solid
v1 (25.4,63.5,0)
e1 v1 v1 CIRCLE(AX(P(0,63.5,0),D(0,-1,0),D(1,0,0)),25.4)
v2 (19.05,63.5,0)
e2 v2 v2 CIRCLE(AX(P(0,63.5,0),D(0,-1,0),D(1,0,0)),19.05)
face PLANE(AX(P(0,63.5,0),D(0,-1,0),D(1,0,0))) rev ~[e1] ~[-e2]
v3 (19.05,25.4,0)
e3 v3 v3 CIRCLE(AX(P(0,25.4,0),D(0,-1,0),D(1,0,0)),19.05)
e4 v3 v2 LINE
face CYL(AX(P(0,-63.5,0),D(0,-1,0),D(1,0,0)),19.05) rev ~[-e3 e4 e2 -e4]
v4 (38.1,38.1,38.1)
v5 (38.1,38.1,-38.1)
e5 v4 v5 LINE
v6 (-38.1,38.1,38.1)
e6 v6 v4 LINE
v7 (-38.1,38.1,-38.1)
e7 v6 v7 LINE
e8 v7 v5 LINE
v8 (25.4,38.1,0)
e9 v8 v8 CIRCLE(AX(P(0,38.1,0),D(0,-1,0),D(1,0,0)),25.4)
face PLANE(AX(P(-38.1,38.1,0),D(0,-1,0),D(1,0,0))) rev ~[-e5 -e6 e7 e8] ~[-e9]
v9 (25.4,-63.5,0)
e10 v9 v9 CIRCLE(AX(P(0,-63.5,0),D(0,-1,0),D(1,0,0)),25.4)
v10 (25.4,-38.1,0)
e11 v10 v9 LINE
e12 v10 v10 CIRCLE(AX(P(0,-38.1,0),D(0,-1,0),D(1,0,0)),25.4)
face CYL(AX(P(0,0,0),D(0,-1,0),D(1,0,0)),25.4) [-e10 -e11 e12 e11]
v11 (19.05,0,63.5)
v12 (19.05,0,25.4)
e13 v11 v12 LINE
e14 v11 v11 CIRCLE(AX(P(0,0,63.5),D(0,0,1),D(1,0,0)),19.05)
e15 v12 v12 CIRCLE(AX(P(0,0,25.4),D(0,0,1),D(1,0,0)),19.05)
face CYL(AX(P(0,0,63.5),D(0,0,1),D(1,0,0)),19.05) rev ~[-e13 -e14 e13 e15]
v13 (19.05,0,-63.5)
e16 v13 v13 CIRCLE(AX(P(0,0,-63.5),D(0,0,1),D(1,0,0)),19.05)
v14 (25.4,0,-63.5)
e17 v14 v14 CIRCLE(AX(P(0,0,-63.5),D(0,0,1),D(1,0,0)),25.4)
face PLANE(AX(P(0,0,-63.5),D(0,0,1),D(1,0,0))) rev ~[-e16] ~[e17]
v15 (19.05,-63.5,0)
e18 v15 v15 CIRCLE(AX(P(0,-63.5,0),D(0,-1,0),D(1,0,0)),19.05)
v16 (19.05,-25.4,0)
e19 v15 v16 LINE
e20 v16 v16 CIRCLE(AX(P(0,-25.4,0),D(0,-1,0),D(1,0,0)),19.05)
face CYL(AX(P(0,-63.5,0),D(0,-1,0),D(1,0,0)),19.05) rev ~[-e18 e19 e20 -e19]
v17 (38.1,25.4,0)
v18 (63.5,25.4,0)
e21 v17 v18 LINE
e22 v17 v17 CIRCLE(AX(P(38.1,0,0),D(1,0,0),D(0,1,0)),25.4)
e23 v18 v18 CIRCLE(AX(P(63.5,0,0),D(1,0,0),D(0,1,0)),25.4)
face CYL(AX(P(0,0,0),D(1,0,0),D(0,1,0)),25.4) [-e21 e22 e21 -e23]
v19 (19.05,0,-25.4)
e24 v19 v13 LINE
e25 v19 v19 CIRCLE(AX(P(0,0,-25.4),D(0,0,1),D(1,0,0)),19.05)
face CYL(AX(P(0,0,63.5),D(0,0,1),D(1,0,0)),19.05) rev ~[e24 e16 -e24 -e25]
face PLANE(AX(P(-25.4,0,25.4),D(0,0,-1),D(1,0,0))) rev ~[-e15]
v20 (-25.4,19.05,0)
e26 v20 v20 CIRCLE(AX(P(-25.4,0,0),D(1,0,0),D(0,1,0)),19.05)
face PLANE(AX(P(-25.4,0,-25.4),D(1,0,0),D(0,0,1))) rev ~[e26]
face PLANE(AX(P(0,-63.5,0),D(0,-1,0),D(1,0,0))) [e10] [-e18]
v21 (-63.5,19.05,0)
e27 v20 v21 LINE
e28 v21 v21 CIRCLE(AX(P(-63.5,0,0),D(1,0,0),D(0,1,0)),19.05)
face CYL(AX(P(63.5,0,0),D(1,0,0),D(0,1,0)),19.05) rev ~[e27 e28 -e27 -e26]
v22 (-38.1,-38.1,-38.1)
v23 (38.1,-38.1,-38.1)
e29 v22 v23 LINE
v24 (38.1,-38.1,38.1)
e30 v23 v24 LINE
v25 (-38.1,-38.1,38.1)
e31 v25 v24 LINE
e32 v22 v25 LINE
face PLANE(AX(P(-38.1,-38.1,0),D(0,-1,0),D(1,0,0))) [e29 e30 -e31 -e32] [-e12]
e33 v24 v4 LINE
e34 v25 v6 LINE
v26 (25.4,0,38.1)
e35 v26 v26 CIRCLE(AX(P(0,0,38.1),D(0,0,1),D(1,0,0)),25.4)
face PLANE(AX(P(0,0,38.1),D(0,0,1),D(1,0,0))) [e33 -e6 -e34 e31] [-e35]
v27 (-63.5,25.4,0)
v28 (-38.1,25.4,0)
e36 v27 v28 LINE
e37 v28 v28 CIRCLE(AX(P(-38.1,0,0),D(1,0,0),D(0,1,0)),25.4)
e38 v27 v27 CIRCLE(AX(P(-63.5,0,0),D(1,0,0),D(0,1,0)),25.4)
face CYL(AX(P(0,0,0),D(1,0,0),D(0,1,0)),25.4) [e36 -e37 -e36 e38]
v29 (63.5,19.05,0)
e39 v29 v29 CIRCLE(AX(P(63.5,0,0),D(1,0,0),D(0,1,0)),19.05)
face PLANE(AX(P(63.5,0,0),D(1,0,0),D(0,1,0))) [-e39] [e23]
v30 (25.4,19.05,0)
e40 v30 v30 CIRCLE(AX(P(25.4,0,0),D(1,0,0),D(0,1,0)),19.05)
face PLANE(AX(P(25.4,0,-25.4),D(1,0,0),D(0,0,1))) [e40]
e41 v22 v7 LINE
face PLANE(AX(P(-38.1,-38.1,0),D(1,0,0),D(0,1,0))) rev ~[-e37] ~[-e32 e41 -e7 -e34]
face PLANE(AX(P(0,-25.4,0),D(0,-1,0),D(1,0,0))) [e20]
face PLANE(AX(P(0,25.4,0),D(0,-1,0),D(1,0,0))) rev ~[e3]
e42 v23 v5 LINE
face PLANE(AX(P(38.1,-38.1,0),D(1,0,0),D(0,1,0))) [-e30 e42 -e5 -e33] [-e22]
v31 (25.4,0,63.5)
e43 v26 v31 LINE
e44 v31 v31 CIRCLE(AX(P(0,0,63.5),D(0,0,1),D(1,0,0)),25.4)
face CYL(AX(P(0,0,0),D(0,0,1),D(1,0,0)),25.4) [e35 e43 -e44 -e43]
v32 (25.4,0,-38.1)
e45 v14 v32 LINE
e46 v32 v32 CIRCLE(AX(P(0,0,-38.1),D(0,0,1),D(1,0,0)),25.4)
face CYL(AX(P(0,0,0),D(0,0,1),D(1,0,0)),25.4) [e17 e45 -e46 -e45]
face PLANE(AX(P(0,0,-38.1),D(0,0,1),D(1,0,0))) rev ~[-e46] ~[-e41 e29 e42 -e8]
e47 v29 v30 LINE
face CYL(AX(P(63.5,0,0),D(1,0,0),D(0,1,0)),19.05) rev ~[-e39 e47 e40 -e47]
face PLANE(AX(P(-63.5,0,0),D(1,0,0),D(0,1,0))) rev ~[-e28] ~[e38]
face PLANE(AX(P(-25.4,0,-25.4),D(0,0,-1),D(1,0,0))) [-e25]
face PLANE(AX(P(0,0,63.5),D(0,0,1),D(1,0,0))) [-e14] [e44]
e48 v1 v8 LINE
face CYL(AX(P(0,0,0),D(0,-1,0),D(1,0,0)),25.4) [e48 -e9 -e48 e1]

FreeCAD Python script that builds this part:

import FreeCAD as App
import Part
import Sketcher
from FreeCAD import Vector
Q = App.Units.Quantity

doc = App.newDocument("Part")
body = doc.addObject("PartDesign::Body", "Body")

# Sketch on XY plane
sketch1 = doc.addObject("Sketcher::SketchObject", "Sketch")
body.addObject(sketch1)
sketch1.AttachmentSupport = (doc.XY_Plane, [""])
sketch1.MapMode = "FlatFace"
sketch1.addGeometry([
    Part.LineSegment(Vector(-38, 38, 0), Vector(-38, -38, 0)),  # 0
    Part.LineSegment(Vector(-38, -38, 0), Vector(38, -38, 0)),  # 1
    Part.LineSegment(Vector(38, -38, 0), Vector(38, 38, 0)),  # 2
    Part.LineSegment(Vector(38, 38, 0), Vector(-38, 38, 0)),  # 3
    Part.Circle(Vector(0, 0, 0), Vector(0, 0, 1), 25),  # 4
], False)
sketch1.addConstraint([
    Sketcher.Constraint("Coincident", 0, 2, 1, 1),
    Sketcher.Constraint("Coincident", 1, 2, 2, 1),
    Sketcher.Constraint("Coincident", 2, 2, 3, 1),
    Sketcher.Constraint("Coincident", 3, 2, 0, 1),
    Sketcher.Constraint("Vertical", 0),
    Sketcher.Constraint("Horizontal", 1),
    Sketcher.Constraint("Vertical", 2),
    Sketcher.Constraint("Horizontal", 3),
    Sketcher.Constraint("Coincident", 4, 3, -1, 1),
    Sketcher.Constraint("Symmetric", 0, 2, 2, 2, -1, 1),
    Sketcher.Constraint("Equal", 3, 0),
    Sketcher.Constraint("Diameter", 4, Q("2 in")),
    Sketcher.Constraint("DistanceX", 1, 1, 1, 2, Q("3 in")),
])
pad1 = doc.addObject("PartDesign::Pad", "Pad")
body.addObject(pad1)
pad1.Profile = sketch1
pad1.Length = Q("3 in")
pad1.Midplane = True

# Sketch on XY plane
sketch2 = doc.addObject("Sketcher::SketchObject", "Sketch001")
body.addObject(sketch2)
sketch2.AttachmentSupport = (doc.XY_Plane, [""])
sketch2.MapMode = "FlatFace"
sketch2.addGeometry(Part.Circle(Vector(0, 0, 0), Vector(0, 0, 1), 25), False)
sketch2.addConstraint([
    Sketcher.Constraint("Coincident", 0, 3, -1, 1),
    Sketcher.Constraint("Diameter", 0, Q("2 in")),
])
pad2 = doc.addObject("PartDesign::Pad", "Pad001")
body.addObject(pad2)
pad2.Profile = sketch2
pad2.Length = Q("5 in")
pad2.Midplane = True

# Sketch on XZ plane
sketch3 = doc.addObject("Sketcher::SketchObject", "Sketch002")
body.addObject(sketch3)
sketch3.AttachmentSupport = (doc.XZ_Plane, [""])
sketch3.MapMode = "FlatFace"
sketch3.addGeometry(Part.Circle(Vector(0, 0, 0), Vector(0, 0, 1), 25), False)
sketch3.addConstraint([
    Sketcher.Constraint("Coincident", 0, 3, -1, 1),
    Sketcher.Constraint("Diameter", 0, Q("2 in")),
])
pad3 = doc.addObject("PartDesign::Pad", "Pad002")
body.addObject(pad3)
pad3.Profile = sketch3
pad3.Length = Q("5 in")
pad3.Midplane = True

# Sketch on YZ plane
sketch4 = doc.addObject("Sketcher::SketchObject", "Sketch003")
body.addObject(sketch4)
sketch4.AttachmentSupport = (doc.YZ_Plane, [""])
sketch4.MapMode = "FlatFace"
sketch4.addGeometry(Part.Circle(Vector(0, 0, 0), Vector(0, 0, 1), 25), False)
sketch4.addConstraint([
    Sketcher.Constraint("Coincident", 0, 3, -1, 1),
    Sketcher.Constraint("Diameter", 0, Q("2 in")),
])
pad4 = doc.addObject("PartDesign::Pad", "Pad003")
body.addObject(pad4)
pad4.Profile = sketch4
pad4.Length = Q("5 in")
pad4.Midplane = True

# Sketch on XY plane
sketch5 = doc.addObject("Sketcher::SketchObject", "Sketch004")
body.addObject(sketch5)
sketch5.AttachmentSupport = (doc.XY_Plane, [""])
sketch5.MapMode = "FlatFace"
sketch5.AttachmentOffset = App.Placement(Vector(0, 0, 2.5 * 25.4), App.Rotation())
sketch5.addGeometry(Part.Circle(Vector(0, 0, 0), Vector(0, 0, 1), 19), False)
sketch5.addConstraint([
    Sketcher.Constraint("Coincident", 0, 3, -1, 1),
    Sketcher.Constraint("Diameter", 0, Q("1.5 in")),
])
pocket1 = doc.addObject("PartDesign::Pocket", "Pocket")
body.addObject(pocket1)
pocket1.Profile = sketch5
pocket1.Type = "ThroughAll"

# Sketch on XZ plane
sketch6 = doc.addObject("Sketcher::SketchObject", "Sketch005")
body.addObject(sketch6)
sketch6.AttachmentSupport = (doc.XZ_Plane, [""])
sketch6.MapMode = "FlatFace"
sketch6.AttachmentOffset = App.Placement(Vector(0, 0, 2.5 * 25.4), App.Rotation())
sketch6.addGeometry(Part.Circle(Vector(0, 0, 0), Vector(0, 0, 1), 19), False)
sketch6.addConstraint([
    Sketcher.Constraint("Coincident", 0, 3, -1, 1),
    Sketcher.Constraint("Diameter", 0, Q("1.5 in")),
])
pocket2 = doc.addObject("PartDesign::Pocket", "Pocket001")
body.addObject(pocket2)
pocket2.Profile = sketch6
pocket2.Type = "ThroughAll"

# Sketch on YZ plane
sketch7 = doc.addObject("Sketcher::SketchObject", "Sketch006")
body.addObject(sketch7)
sketch7.AttachmentSupport = (doc.YZ_Plane, [""])
sketch7.MapMode = "FlatFace"
sketch7.AttachmentOffset = App.Placement(Vector(0, 0, 2.5 * 25.4), App.Rotation())
sketch7.addGeometry(Part.Circle(Vector(0, 0, 0), Vector(0, 0, 1), 19), False)
sketch7.addConstraint([
    Sketcher.Constraint("Coincident", 0, 3, -1, 1),
    Sketcher.Constraint("Diameter", 0, Q("1.5 in")),
])
pocket3 = doc.addObject("PartDesign::Pocket", "Pocket002")
body.addObject(pocket3)
pocket3.Profile = sketch7
pocket3.Type = "ThroughAll"

# Sketch on XZ plane
sketch8 = doc.addObject("Sketcher::SketchObject", "Sketch007")
body.addObject(sketch8)
sketch8.AttachmentSupport = (doc.XZ_Plane, [""])
sketch8.MapMode = "FlatFace"
sketch8.addGeometry([
    Part.LineSegment(Vector(-25, 25, 0), Vector(-25, -25, 0)),
    Part.LineSegment(Vector(-25, -25, 0), Vector(25, -25, 0)),
    Part.LineSegment(Vector(25, -25, 0), Vector(25, 25, 0)),
    Part.LineSegment(Vector(25, 25, 0), Vector(-25, 25, 0)),
], False)
sketch8.addConstraint([
    Sketcher.Constraint("Coincident", 0, 2, 1, 1),
    Sketcher.Constraint("Coincident", 1, 2, 2, 1),
    Sketcher.Constraint("Coincident", 2, 2, 3, 1),
    Sketcher.Constraint("Coincident", 3, 2, 0, 1),
    Sketcher.Constraint("Vertical", 0),
    Sketcher.Constraint("Horizontal", 1),
    Sketcher.Constraint("Vertical", 2),
    Sketcher.Constraint("Horizontal", 3),
    Sketcher.Constraint("Symmetric", 0, 2, 2, 2, -1, 1),
    Sketcher.Constraint("Equal", 3, 0),
    Sketcher.Constraint("DistanceX", 1, 1, 1, 2, Q("2 in")),
])
pad5 = doc.addObject("PartDesign::Pad", "Pad004")
body.addObject(pad5)
pad5.Profile = sketch8
pad5.Length = Q("2 in")
pad5.Midplane = True

doc.recompute()
